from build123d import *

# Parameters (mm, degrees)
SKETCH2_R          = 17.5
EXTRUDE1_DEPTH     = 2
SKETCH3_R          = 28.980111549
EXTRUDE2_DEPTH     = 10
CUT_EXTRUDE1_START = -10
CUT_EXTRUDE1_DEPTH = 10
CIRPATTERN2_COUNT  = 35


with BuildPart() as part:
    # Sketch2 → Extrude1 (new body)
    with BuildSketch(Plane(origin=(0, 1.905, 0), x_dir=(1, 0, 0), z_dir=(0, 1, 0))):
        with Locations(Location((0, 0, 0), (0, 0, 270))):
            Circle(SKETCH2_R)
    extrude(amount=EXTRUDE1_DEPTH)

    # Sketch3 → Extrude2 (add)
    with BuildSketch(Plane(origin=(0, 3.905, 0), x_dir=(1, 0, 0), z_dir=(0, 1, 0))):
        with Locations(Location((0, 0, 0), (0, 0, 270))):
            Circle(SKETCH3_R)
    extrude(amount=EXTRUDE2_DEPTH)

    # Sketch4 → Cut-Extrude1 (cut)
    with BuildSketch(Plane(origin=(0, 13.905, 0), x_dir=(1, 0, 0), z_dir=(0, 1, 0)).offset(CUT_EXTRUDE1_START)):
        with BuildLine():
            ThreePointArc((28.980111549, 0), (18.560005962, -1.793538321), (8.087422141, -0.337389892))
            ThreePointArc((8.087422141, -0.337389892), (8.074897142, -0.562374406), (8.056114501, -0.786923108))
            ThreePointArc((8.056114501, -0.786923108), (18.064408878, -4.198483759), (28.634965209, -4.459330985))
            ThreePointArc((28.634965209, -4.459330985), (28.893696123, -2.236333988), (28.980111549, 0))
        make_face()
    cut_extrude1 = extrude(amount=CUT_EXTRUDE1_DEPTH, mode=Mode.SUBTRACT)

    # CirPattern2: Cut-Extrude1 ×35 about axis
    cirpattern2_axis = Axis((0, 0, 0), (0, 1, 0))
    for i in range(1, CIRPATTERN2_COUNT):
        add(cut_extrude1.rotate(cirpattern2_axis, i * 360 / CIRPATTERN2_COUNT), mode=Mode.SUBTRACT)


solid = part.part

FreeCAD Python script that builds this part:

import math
import FreeCAD as App
import Part
import Sketcher
from FreeCAD import Vector

doc = App.newDocument("Part")
params = doc.addObject("Spreadsheet::Sheet", "Params")
for row, (alias, value) in enumerate([
    ("sketch1_diameter", "35 mm"),
    ("pad1_length", "2 mm"),
    ("pad2_length", "10 mm"),
    ("pocket1_length", "10 mm"),
], start=1):
    params.set(f"A{row}", alias)
    params.set(f"B{row}", "=" + value)
    params.setAlias(f"B{row}", alias)

body = doc.addObject("PartDesign::Body", "Body")

# Sketch on XZ plane
sketch1 = body.newObject("Sketcher::SketchObject", "Sketch")
sketch1.AttachmentSupport = (doc.getObject("XZ_Plane"), [""])
sketch1.MapMode = "FlatFace"
sketch1.AttachmentOffset = App.Placement(Vector(0, 0, -1.905), App.Rotation())
sketch1.addGeometry(Part.Circle(Vector(0, 0, 0), Vector(0, 0, 1), 17.5), False)
sketch1.addConstraint([
    Sketcher.Constraint("Coincident", 0, 3, -1, 1),
    Sketcher.Constraint("Diameter", 0, 35.0),
])
sketch1.setExpression("Constraints[1]", "Params.sketch1_diameter")
pad1 = body.newObject("PartDesign::Pad", "Pad")
pad1.Profile = sketch1
pad1.setExpression("Length", "Params.pad1_length")
pad1.Reversed = True

# Sketch on XZ plane
sketch2 = body.newObject("Sketcher::SketchObject", "Sketch001")
sketch2.AttachmentSupport = (doc.getObject("XZ_Plane"), [""])
sketch2.MapMode = "FlatFace"
sketch2.AttachmentOffset = App.Placement(Vector(0, 0, -3.905), App.Rotation())
sketch2.addGeometry(Part.Circle(Vector(0, 0, 0), Vector(0, 0, 1), 28.980112), False)
sketch2.addConstraint([
    Sketcher.Constraint("Coincident", 0, 3, -1, 1),
    Sketcher.Constraint("Diameter", 0, 57.960223),
])
pad2 = body.newObject("PartDesign::Pad", "Pad001")
pad2.Profile = sketch2
pad2.setExpression("Length", "Params.pad2_length")
pad2.Reversed = True

# Sketch on XZ plane
sketch3 = body.newObject("Sketcher::SketchObject", "Sketch002")
sketch3.AttachmentSupport = (doc.getObject("XZ_Plane"), [""])
sketch3.MapMode = "FlatFace"
sketch3.AttachmentOffset = App.Placement(Vector(0, 0, -3.905), App.Rotation())
sketch3.addGeometry([
    Part.ArcOfCircle(Part.Circle(Vector(18.004605, -32.599387, 0), Vector(0, 0, 1), 34.39741), math.radians(71.392736), math.radians(106.756919)),
    Part.ArcOfCircle(Part.Circle(Vector(0, 0, 0), Vector(0, 0, 1), 8.094457), math.radians(2.388872), math.radians(5.578966)),
    Part.ArcOfCircle(Part.Circle(Vector(24.201547, -30.19183, 0), Vector(0, 0, 1), 34.933625), math.radians(82.708945), math.radians(117.527518)),
    Part.ArcOfCircle(Part.Circle(Vector(0, 0, 0), Vector(0, 0, 1), 28.980112), math.radians(0), math.radians(8.851588)),
], False)
sketch3.addConstraint([
    Sketcher.Constraint("Coincident", 0, 2, 1, 1),
    Sketcher.Constraint("Coincident", 1, 2, 2, 2),
    Sketcher.Constraint("Coincident", 2, 1, 3, 2),
    Sketcher.Constraint("Coincident", 3, 1, 0, 1),
    Sketcher.Constraint("Coincident", 1, 3, -1, 1),
    Sketcher.Constraint("Coincident", 3, 3, -1, 1),
    Sketcher.Constraint("PointOnObject", 3, 1, -1),
    Sketcher.Constraint("Radius", 0, 34.39741),
    Sketcher.Constraint("Radius", 3, 28.980112),
    Sketcher.Constraint("Radius", 1, 8.094457),
    Sketcher.Constraint("Radius", 2, 34.933625),
    Sketcher.Constraint("DistanceY", 2, 3, -1, 1, 30.19183),
    Sketcher.Constraint("DistanceY", -1, 1, 0, 2, 0.33739),
    Sketcher.Constraint("DistanceY", -1, 1, 2, 1, 4.459331),
])
pocket1 = body.newObject("PartDesign::Pocket", "Pocket")
pocket1.Profile = sketch3
pocket1.setExpression("Length", "Params.pocket1_length")
doc.recompute()

polarpattern = body.newObject("PartDesign::PolarPattern", "PolarPattern")
polarpattern.Originals = [pocket1]
polarpattern.Axis = (doc.getObject("Y_Axis"), [""])
polarpattern.Angle = 360
polarpattern.Occurrences = 35
body.Tip = polarpattern

doc.recompute()
